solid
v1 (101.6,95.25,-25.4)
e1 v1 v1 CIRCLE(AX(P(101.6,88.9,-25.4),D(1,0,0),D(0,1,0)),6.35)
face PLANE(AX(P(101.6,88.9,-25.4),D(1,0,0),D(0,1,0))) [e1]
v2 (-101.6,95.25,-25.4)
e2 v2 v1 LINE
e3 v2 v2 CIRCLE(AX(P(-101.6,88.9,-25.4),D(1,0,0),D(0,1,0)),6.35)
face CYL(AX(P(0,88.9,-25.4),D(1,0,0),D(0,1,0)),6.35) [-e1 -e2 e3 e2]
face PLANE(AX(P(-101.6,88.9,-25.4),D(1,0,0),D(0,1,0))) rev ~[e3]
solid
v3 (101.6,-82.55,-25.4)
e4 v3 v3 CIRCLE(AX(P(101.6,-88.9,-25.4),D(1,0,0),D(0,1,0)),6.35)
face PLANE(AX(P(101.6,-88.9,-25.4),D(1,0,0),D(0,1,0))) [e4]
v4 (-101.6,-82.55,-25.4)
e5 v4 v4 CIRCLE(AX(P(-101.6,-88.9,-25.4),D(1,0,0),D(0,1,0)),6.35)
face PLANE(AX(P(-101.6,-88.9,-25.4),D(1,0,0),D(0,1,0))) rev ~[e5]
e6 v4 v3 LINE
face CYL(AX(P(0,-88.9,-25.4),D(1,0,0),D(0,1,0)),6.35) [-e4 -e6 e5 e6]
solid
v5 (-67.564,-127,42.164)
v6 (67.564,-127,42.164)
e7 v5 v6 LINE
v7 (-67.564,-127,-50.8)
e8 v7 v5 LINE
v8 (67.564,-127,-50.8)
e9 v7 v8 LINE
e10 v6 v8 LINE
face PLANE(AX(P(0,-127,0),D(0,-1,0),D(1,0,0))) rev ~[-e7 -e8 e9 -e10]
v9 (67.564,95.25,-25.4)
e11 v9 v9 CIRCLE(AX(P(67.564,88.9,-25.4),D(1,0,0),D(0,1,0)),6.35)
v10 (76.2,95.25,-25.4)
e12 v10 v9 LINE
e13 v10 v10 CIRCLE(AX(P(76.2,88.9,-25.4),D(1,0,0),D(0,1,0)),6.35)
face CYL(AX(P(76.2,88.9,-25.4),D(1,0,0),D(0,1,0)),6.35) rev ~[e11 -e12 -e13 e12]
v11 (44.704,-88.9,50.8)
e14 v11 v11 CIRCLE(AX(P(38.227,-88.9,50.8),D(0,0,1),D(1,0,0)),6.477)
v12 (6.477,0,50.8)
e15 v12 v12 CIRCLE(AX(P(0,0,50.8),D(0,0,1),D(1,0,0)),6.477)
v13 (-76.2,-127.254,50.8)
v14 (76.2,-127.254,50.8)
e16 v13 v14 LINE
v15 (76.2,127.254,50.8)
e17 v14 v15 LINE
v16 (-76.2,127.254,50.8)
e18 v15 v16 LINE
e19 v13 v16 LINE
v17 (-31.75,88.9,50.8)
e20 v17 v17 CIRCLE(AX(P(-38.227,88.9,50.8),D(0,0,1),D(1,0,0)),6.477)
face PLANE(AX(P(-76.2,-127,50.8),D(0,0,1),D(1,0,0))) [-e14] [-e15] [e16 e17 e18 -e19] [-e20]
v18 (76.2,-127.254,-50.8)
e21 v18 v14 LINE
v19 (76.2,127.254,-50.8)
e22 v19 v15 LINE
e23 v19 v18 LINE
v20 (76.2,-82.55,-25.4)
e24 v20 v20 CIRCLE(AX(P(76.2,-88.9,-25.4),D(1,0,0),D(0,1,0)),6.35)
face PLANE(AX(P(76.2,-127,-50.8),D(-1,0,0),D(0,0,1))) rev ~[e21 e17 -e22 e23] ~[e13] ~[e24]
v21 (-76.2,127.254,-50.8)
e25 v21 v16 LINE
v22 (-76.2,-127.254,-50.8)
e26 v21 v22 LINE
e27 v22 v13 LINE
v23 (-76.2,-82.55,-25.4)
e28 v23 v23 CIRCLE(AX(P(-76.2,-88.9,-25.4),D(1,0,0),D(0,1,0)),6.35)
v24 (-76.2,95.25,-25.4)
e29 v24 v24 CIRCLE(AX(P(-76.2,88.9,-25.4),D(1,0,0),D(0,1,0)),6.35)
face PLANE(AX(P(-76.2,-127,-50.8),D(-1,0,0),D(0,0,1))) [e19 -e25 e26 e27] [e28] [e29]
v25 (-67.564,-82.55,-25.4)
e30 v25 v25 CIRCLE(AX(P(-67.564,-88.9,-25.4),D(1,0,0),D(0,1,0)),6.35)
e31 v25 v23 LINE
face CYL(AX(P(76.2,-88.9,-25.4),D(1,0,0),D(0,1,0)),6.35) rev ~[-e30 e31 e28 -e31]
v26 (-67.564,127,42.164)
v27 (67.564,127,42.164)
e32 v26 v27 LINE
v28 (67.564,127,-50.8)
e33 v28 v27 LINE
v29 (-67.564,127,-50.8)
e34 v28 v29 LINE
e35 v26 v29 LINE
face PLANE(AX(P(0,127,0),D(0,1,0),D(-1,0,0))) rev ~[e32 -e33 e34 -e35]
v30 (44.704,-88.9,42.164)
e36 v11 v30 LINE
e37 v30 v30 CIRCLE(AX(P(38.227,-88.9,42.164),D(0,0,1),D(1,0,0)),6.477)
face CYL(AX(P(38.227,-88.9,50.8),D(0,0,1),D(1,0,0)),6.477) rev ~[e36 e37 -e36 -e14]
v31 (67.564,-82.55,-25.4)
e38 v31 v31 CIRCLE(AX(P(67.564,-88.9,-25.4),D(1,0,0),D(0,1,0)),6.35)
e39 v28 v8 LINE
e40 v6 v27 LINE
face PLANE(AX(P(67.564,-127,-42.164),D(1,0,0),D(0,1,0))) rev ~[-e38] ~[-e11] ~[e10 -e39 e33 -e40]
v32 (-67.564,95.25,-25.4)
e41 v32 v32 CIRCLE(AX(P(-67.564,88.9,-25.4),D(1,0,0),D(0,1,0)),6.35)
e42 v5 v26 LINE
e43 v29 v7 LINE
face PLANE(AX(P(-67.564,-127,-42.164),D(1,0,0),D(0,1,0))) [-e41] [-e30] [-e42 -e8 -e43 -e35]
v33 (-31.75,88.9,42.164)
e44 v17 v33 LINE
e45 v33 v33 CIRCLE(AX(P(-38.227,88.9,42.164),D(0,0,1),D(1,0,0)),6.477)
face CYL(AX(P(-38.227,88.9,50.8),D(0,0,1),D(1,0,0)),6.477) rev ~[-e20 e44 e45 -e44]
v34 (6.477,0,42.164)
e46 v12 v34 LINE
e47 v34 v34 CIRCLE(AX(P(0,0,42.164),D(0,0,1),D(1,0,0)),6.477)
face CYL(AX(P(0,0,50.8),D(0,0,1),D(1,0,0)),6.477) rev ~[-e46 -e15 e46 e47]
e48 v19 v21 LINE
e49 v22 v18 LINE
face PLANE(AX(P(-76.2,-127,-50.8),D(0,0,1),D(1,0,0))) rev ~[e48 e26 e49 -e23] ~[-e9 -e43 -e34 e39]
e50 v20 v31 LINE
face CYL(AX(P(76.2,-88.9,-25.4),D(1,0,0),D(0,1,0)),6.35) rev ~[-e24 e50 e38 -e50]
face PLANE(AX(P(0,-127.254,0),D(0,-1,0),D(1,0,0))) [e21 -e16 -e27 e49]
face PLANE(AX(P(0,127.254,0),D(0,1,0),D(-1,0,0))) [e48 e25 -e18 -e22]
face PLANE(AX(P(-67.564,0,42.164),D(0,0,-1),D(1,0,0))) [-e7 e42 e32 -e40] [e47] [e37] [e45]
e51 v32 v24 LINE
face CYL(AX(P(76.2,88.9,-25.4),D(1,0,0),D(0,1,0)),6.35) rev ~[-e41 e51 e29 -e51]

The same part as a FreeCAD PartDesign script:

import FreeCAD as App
import Part
import Sketcher
from FreeCAD import Vector
Q = App.Units.Quantity

doc = App.newDocument("Part")
body = doc.addObject("PartDesign::Body", "Body")

sketch1 = body.newObject("Sketcher::SketchObject", "Sketch")
sketch1.AttachmentSupport = (doc.getObject("XZ_Plane"), [""])
sketch1.MapMode = "FlatFace"
sketch1.addGeometry([
    Part.LineSegment(Vector(-76, 51, 0), Vector(-76, -51, 0)),
    Part.LineSegment(Vector(-76, -51, 0), Vector(76, -51, 0)),
    Part.LineSegment(Vector(76, -51, 0), Vector(76, 51, 0)),
    Part.LineSegment(Vector(76, 51, 0), Vector(-76, 51, 0)),
    Part.LineSegment(Vector(68, -42, 0), Vector(-68, -42, 0)),
    Part.LineSegment(Vector(-68, -42, 0), Vector(-68, 42, 0)),
    Part.LineSegment(Vector(-68, 42, 0), Vector(68, 42, 0)),
    Part.LineSegment(Vector(68, 42, 0), Vector(68, -42, 0)),
], False)
sketch1.addConstraint([
    Sketcher.Constraint("Coincident", 0, 2, 1, 1),
    Sketcher.Constraint("Coincident", 1, 2, 2, 1),
    Sketcher.Constraint("Coincident", 2, 2, 3, 1),
    Sketcher.Constraint("Coincident", 3, 2, 0, 1),
    Sketcher.Constraint("Coincident", 4, 2, 5, 1),
    Sketcher.Constraint("Coincident", 5, 2, 6, 1),
    Sketcher.Constraint("Coincident", 6, 2, 7, 1),
    Sketcher.Constraint("Coincident", 7, 2, 4, 1),
    Sketcher.Constraint("Vertical", 0),
    Sketcher.Constraint("Horizontal", 1),
    Sketcher.Constraint("Vertical", 2),
    Sketcher.Constraint("Horizontal", 3),
    Sketcher.Constraint("Horizontal", 4),
    Sketcher.Constraint("Vertical", 5),
    Sketcher.Constraint("Horizontal", 6),
    Sketcher.Constraint("Vertical", 7),
    Sketcher.Constraint("Symmetric", 0, 2, 2, 2, -1, 1),
    Sketcher.Constraint("Symmetric", 4, 2, 6, 2, -1, 1),
    Sketcher.Constraint("DistanceX", 1, 1, 1, 2, Q("6 in")),
    Sketcher.Constraint("DistanceY", 0, 2, 0, 1, Q("4 in")),
    Sketcher.Constraint("DistanceX", 4, 2, 4, 1, Q("5.32 in")),
    Sketcher.Constraint("DistanceY", 5, 1, 5, 2, Q("3.32 in")),
])
pad1 = body.newObject("PartDesign::Pad", "Pad")
pad1.Profile = sketch1
pad1.Length = Q("10 in")
pad1.Midplane = True

sketch2 = body.newObject("Sketcher::SketchObject", "Sketch001")
sketch2.AttachmentSupport = (doc.getObject("YZ_Plane"), [""])
sketch2.MapMode = "FlatFace"
sketch2.AttachmentOffset = App.Placement(Vector(0, 0, 3 * 25.4), App.Rotation())
sketch2.addGeometry([
    Part.Circle(Vector(-89, -25, 0), Vector(0, 0, 1), 6),
    Part.Circle(Vector(89, -25, 0), Vector(0, 0, 1), 6),
], False)
sketch2.addConstraint([
    Sketcher.Constraint("Equal", 0, 1),
    Sketcher.Constraint("Symmetric", 0, 3, 1, 3, -2),
    Sketcher.Constraint("Diameter", 0, Q("0.5 in")),
    Sketcher.Constraint("DistanceY", 0, 3, -1, 1, Q("1 in")),
    Sketcher.Constraint("DistanceX", 0, 3, 1, 3, Q("7 in")),
])
pocket1 = body.newObject("PartDesign::Pocket", "Pocket")
pocket1.Profile = sketch2
pocket1.Type = "ThroughAll"

sketch3 = body.newObject("Sketcher::SketchObject", "Sketch002")
sketch3.AttachmentSupport = (doc.getObject("XY_Plane"), [""])
sketch3.MapMode = "FlatFace"
sketch3.AttachmentOffset = App.Placement(Vector(0, 0, -1.66 * 25.4), App.Rotation())
sketch3.addGeometry([
    Part.LineSegment(Vector(-68, 127, 0), Vector(-68, -127, 0)),
    Part.LineSegment(Vector(-68, -127, 0), Vector(68, -127, 0)),
    Part.LineSegment(Vector(68, -127, 0), Vector(68, 127, 0)),
    Part.LineSegment(Vector(68, 127, 0), Vector(-68, 127, 0)),
], False)
sketch3.addConstraint([
    Sketcher.Constraint("Coincident", 0, 2, 1, 1),
    Sketcher.Constraint("Coincident", 1, 2, 2, 1),
    Sketcher.Constraint("Coincident", 2, 2, 3, 1),
    Sketcher.Constraint("Coincident", 3, 2, 0, 1),
    Sketcher.Constraint("Vertical", 0),
    Sketcher.Constraint("Horizontal", 1),
    Sketcher.Constraint("Vertical", 2),
    Sketcher.Constraint("Horizontal", 3),
    Sketcher.Constraint("Symmetric", 0, 2, 2, 2, -1, 1),
    Sketcher.Constraint("DistanceY", 0, 2, 0, 1, Q("10 in")),
    Sketcher.Constraint("DistanceX", 1, 1, 1, 2, Q("5.32 in")),
])
pocket2 = body.newObject("PartDesign::Pocket", "Pocket001")
pocket2.Profile = sketch3
pocket2.Length = Q("1 in")

sketch4 = body.newObject("Sketcher::SketchObject", "Sketch003")
sketch4.AttachmentSupport = (doc.getObject("XY_Plane"), [""])
sketch4.MapMode = "FlatFace"
sketch4.AttachmentOffset = App.Placement(Vector(0, 0, 2 * 25.4), App.Rotation())
sketch4.addGeometry([
    Part.Circle(Vector(-38, 89, 0), Vector(0, 0, 1), 6),
    Part.Circle(Vector(38, -89, 0), Vector(0, 0, 1), 6),
    Part.Circle(Vector(0, 0, 0), Vector(0, 0, 1), 6),
], False)
sketch4.addConstraint([
    Sketcher.Constraint("Coincident", 2, 3, -1, 1),
    Sketcher.Constraint("Equal", 0, 1),
    Sketcher.Constraint("Equal", 1, 2),
    Sketcher.Constraint("Symmetric", 0, 3, 1, 3, -1, 1),
    Sketcher.Constraint("Diameter", 0, Q("0.51 in")),
    Sketcher.Constraint("DistanceY", 1, 3, 0, 3, Q("7 in")),
    Sketcher.Constraint("DistanceX", 0, 3, 1, 3, Q("3.01 in")),
])
pocket3 = body.newObject("PartDesign::Pocket", "Pocket002")
pocket3.Profile = sketch4
pocket3.Length = Q("1 in")

sketch5 = body.newObject("Sketcher::SketchObject", "Sketch004")
sketch5.AttachmentSupport = (doc.getObject("XZ_Plane"), [""])
sketch5.MapMode = "FlatFace"
sketch5.AttachmentOffset = App.Placement(Vector(0, 0, -5 * 25.4), App.Rotation())
sketch5.addGeometry([
    Part.LineSegment(Vector(76, 51, 0), Vector(76, -51, 0)),
    Part.LineSegment(Vector(76, -51, 0), Vector(-76, -51, 0)),
    Part.LineSegment(Vector(-76, -51, 0), Vector(-76, 51, 0)),
    Part.LineSegment(Vector(-76, 51, 0), Vector(76, 51, 0)),
], False)
sketch5.addConstraint([
    Sketcher.Constraint("Coincident", 0, 2, 1, 1),
    Sketcher.Constraint("Coincident", 1, 2, 2, 1),
    Sketcher.Constraint("Coincident", 2, 2, 3, 1),
    Sketcher.Constraint("Coincident", 3, 2, 0, 1),
    Sketcher.Constraint("Vertical", 0),
    Sketcher.Constraint("Horizontal", 1),
    Sketcher.Constraint("Vertical", 2),
    Sketcher.Constraint("Horizontal", 3),
    Sketcher.Constraint("Symmetric", 0, 2, 2, 2, -1, 1),
    Sketcher.Constraint("DistanceX", 1, 2, 1, 1, Q("6 in")),
    Sketcher.Constraint("DistanceY", 0, 2, 0, 1, Q("4 in")),
])
pad2 = body.newObject("PartDesign::Pad", "Pad001")
pad2.Profile = sketch5
pad2.Length = Q("0.01 in")
pad2.Reversed = True

sketch6 = body.newObject("Sketcher::SketchObject", "Sketch005")
sketch6.AttachmentSupport = (doc.getObject("XZ_Plane"), [""])
sketch6.MapMode = "FlatFace"
sketch6.AttachmentOffset = App.Placement(Vector(0, 0, 5 * 25.4), App.Rotation())
sketch6.addGeometry([
    Part.LineSegment(Vector(-76, 51, 0), Vector(-76, -51, 0)),
    Part.LineSegment(Vector(-76, -51, 0), Vector(76, -51, 0)),
    Part.LineSegment(Vector(76, -51, 0), Vector(76, 51, 0)),
    Part.LineSegment(Vector(76, 51, 0), Vector(-76, 51, 0)),
], False)
sketch6.addConstraint([
    Sketcher.Constraint("Coincident", 0, 2, 1, 1),
    Sketcher.Constraint("Coincident", 1, 2, 2, 1),
    Sketcher.Constraint("Coincident", 2, 2, 3, 1),
    Sketcher.Constraint("Coincident", 3, 2, 0, 1),
    Sketcher.Constraint("Vertical", 0),
    Sketcher.Constraint("Horizontal", 1),
    Sketcher.Constraint("Vertical", 2),
    Sketcher.Constraint("Horizontal", 3),
    Sketcher.Constraint("Symmetric", 0, 2, 2, 2, -1, 1),
    Sketcher.Constraint("DistanceX", 1, 1, 1, 2, Q("6 in")),
    Sketcher.Constraint("DistanceY", 0, 2, 0, 1, Q("4 in")),
])
pad3 = body.newObject("PartDesign::Pad", "Pad002")
pad3.Profile = sketch6
pad3.Length = Q("0.01 in")
body2 = doc.addObject("PartDesign::Body", "Body001")

sketch7 = body2.newObject("Sketcher::SketchObject", "Sketch006")
sketch7.AttachmentSupport = (doc.getObject("YZ_Plane001"), [""])
sketch7.MapMode = "FlatFace"
sketch7.addGeometry(Part.Circle(Vector(-89, -25, 0), Vector(0, 0, 1), 6), False)
sketch7.addConstraint([
    Sketcher.Constraint("Diameter", 0, Q("0.5 in")),
    Sketcher.Constraint("DistanceY", 0, 3, -1, 1, Q("1 in")),
    Sketcher.Constraint("DistanceX", 0, 3, -1, 1, Q("3.5 in")),
])
pad4 = body2.newObject("PartDesign::Pad", "Pad003")
pad4.Profile = sketch7
pad4.Length = Q("8 in")
pad4.Midplane = True
body3 = doc.addObject("PartDesign::Body", "Body002")

sketch8 = body3.newObject("Sketcher::SketchObject", "Sketch007")
sketch8.AttachmentSupport = (doc.getObject("YZ_Plane002"), [""])
sketch8.MapMode = "FlatFace"
sketch8.addGeometry(Part.Circle(Vector(89, -25, 0), Vector(0, 0, 1), 6), False)
sketch8.addConstraint([
    Sketcher.Constraint("Diameter", 0, Q("0.5 in")),
    Sketcher.Constraint("DistanceY", 0, 3, -1, 1, Q("1 in")),
    Sketcher.Constraint("DistanceX", -1, 1, 0, 3, Q("3.5 in")),
])
pad5 = body3.newObject("PartDesign::Pad", "Pad004")
pad5.Profile = sketch8
pad5.Length = Q("8 in")
pad5.Midplane = True

doc.recompute()
